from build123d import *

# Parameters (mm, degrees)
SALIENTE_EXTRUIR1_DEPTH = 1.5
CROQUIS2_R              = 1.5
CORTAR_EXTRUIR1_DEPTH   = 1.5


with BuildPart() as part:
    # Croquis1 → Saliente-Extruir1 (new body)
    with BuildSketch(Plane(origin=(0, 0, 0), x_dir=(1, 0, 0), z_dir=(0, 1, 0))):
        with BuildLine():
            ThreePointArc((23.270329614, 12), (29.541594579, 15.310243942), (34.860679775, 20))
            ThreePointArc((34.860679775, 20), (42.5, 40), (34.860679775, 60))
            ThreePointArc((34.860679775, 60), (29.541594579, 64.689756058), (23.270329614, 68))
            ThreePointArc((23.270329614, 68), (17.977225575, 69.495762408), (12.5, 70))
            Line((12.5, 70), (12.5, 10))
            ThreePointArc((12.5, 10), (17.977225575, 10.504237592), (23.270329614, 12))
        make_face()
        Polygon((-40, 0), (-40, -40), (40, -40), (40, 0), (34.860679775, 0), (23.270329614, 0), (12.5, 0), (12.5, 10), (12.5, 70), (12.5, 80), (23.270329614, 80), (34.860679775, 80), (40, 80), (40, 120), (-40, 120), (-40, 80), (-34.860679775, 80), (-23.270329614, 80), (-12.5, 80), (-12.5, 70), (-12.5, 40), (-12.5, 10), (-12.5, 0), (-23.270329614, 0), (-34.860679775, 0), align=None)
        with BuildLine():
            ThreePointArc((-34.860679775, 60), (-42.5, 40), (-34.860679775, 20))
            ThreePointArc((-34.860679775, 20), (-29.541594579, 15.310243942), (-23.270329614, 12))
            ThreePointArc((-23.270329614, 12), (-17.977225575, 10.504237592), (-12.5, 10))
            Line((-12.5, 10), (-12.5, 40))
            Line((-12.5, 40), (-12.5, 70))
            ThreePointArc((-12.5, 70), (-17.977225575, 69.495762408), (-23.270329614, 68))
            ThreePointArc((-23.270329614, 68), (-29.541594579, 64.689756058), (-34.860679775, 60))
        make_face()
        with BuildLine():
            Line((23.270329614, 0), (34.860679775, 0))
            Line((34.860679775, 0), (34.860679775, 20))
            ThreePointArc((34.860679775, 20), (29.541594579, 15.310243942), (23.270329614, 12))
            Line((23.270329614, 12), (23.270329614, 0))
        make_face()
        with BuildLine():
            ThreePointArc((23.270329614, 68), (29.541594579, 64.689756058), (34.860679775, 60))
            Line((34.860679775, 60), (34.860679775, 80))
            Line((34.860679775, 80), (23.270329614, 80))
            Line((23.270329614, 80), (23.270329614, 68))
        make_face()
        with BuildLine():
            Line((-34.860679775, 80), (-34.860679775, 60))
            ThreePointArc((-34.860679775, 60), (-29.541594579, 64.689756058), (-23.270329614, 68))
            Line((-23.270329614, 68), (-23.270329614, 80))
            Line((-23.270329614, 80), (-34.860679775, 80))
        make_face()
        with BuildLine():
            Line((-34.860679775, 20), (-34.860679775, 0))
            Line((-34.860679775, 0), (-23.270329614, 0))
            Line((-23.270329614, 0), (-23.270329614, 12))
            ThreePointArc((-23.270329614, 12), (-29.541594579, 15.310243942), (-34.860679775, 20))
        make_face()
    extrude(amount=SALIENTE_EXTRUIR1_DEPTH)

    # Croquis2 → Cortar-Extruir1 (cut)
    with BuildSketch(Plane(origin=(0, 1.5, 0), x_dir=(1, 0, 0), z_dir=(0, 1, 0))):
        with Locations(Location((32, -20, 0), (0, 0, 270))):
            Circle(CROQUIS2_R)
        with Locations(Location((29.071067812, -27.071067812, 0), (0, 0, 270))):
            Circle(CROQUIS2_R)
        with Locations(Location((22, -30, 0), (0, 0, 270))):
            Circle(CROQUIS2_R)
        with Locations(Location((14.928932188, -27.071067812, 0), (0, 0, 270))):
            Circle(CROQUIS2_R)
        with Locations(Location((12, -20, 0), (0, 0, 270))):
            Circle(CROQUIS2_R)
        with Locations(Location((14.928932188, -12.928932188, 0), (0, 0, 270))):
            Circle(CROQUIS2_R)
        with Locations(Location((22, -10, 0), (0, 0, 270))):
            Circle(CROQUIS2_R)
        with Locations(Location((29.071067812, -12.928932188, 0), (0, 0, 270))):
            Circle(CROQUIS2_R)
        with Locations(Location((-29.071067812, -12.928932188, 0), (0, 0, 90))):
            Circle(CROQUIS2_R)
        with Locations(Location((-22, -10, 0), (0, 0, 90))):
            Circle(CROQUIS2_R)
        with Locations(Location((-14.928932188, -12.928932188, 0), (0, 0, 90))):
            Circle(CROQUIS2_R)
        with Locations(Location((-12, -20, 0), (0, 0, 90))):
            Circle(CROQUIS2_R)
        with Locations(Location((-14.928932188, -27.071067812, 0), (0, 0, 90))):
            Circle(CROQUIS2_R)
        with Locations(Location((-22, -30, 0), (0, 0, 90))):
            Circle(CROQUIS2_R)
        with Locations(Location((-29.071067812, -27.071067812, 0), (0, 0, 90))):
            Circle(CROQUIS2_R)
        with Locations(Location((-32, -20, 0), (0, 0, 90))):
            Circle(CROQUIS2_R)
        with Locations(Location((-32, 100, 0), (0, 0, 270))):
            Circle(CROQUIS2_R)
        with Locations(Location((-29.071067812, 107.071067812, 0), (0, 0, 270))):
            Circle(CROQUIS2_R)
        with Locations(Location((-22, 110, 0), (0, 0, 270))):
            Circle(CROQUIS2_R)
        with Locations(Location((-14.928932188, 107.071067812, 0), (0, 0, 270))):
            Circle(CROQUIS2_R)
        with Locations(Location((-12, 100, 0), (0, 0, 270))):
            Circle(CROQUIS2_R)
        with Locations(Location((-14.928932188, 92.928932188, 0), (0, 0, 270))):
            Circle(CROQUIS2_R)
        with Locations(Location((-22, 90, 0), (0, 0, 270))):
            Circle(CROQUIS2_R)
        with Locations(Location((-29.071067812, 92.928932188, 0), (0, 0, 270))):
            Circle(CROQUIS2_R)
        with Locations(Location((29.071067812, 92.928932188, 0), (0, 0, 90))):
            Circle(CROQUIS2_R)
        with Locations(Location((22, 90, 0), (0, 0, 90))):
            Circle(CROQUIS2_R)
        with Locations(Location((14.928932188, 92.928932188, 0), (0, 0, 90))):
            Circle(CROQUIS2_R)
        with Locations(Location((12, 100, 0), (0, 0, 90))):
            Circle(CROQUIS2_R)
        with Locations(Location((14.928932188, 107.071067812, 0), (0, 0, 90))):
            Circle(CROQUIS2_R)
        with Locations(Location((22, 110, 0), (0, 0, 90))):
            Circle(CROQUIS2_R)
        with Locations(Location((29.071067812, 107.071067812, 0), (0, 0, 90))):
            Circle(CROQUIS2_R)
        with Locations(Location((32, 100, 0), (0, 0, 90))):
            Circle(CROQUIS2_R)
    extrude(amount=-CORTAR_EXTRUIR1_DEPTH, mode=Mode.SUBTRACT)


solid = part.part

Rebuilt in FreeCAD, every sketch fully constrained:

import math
import FreeCAD as App
import Part
import Sketcher

doc = App.newDocument("Part")
params = doc.addObject("Spreadsheet::Sheet", "Params")
for row, (alias, value) in enumerate([
    ("sketch1_radius", "30 mm"),
    ("sketch1_width", "80 mm"),
    ("sketch1_height", "20 mm"),
    ("sketch1_height2", "40 mm"),
    ("sketch1_height3", "10 mm"),
    ("pad1_length", "1.5 mm"),
    ("sketch2_diameter", "3 mm"),
    ("pocket1_length", "1.5 mm"),
], start=1):
    params.set(f"A{row}", alias)
    params.set(f"B{row}", "=" + value)
    params.setAlias(f"B{row}", alias)

body = doc.addObject("PartDesign::Body", "Body")

# Sketch on XZ plane
sketch1 = doc.addObject("Sketcher::SketchObject", "Sketch")
body.addObject(sketch1)
sketch1.AttachmentSupport = (doc.XZ_Plane, [""])
sketch1.MapMode = "FlatFace"
sketch1.addGeometry([
    Part.ArcOfCircle(Part.Circle(App.Vector(12.5, -40, 0), App.Vector(0, 0, 1), 30), math.radians(-41.810315), math.radians(41.810315)),  # 0
    Part.LineSegment(App.Vector(34.86068, -60, 0), App.Vector(34.86068, -80, 0)),  # 1
    Part.LineSegment(App.Vector(34.86068, -80, 0), App.Vector(40, -80, 0)),  # 2
    Part.LineSegment(App.Vector(40, -80, 0), App.Vector(40, -120, 0)),  # 3
    Part.LineSegment(App.Vector(40, -120, 0), App.Vector(-40, -120, 0)),  # 4
    Part.LineSegment(App.Vector(-40, -120, 0), App.Vector(-40, -80, 0)),  # 5
    Part.LineSegment(App.Vector(-40, -80, 0), App.Vector(-34.86068, -80, 0)),  # 6
    Part.LineSegment(App.Vector(-34.86068, -80, 0), App.Vector(-34.86068, -60, 0)),  # 7
    Part.ArcOfCircle(Part.Circle(App.Vector(-12.5, -40, 0), App.Vector(0, 0, 1), 30), math.radians(138.189685), math.radians(221.810315)),  # 8
    Part.LineSegment(App.Vector(-34.86068, -20, 0), App.Vector(-34.86068, 0, 0)),  # 9
    Part.LineSegment(App.Vector(-34.86068, 0, 0), App.Vector(-40, 0, 0)),  # 10
    Part.LineSegment(App.Vector(-40, 0, 0), App.Vector(-40, 40, 0)),  # 11
    Part.LineSegment(App.Vector(-40, 40, 0), App.Vector(40, 40, 0)),  # 12
    Part.LineSegment(App.Vector(40, 40, 0), App.Vector(40, 0, 0)),  # 13
    Part.LineSegment(App.Vector(40, 0, 0), App.Vector(34.86068, 0, 0)),  # 14
    Part.LineSegment(App.Vector(34.86068, 0, 0), App.Vector(34.86068, -20, 0)),  # 15
    Part.ArcOfCircle(Part.Circle(App.Vector(-12.5, -40, 0), App.Vector(0, 0, 1), 30), math.radians(90), math.radians(111.03947)),  # 16
    Part.LineSegment(App.Vector(-12.5, -10, 0), App.Vector(-12.5, 0, 0)),  # 17
    Part.LineSegment(App.Vector(-12.5, 0, 0), App.Vector(-23.27033, 0, 0)),  # 18
    Part.LineSegment(App.Vector(-23.27033, 0, 0), App.Vector(-23.27033, -12, 0)),  # 19
    Part.LineSegment(App.Vector(-23.27033, -80, 0), App.Vector(-12.5, -80, 0)),  # 20
    Part.LineSegment(App.Vector(-12.5, -80, 0), App.Vector(-12.5, -70, 0)),  # 21
    Part.ArcOfCircle(Part.Circle(App.Vector(-12.5, -40, 0), App.Vector(0, 0, 1), 30), math.radians(-111.03947), math.radians(-90)),  # 22
    Part.LineSegment(App.Vector(-23.27033, -68, 0), App.Vector(-23.27033, -80, 0)),  # 23
    Part.ArcOfCircle(Part.Circle(App.Vector(12.5, -40, 0), App.Vector(0, 0, 1), 30), math.radians(-90), math.radians(-68.96053)),  # 24
    Part.LineSegment(App.Vector(12.5, -70, 0), App.Vector(12.5, -80, 0)),  # 25
    Part.LineSegment(App.Vector(12.5, -80, 0), App.Vector(23.27033, -80, 0)),  # 26
    Part.LineSegment(App.Vector(23.27033, -80, 0), App.Vector(23.27033, -68, 0)),  # 27
    Part.LineSegment(App.Vector(23.27033, 0, 0), App.Vector(12.5, 0, 0)),  # 28
    Part.LineSegment(App.Vector(12.5, 0, 0), App.Vector(12.5, -10, 0)),  # 29
    Part.ArcOfCircle(Part.Circle(App.Vector(12.5, -40, 0), App.Vector(0, 0, 1), 30), math.radians(68.96053), math.radians(90)),  # 30
    Part.LineSegment(App.Vector(23.27033, -12, 0), App.Vector(23.27033, 0, 0)),  # 31
], False)
sketch1.addConstraint([
    Sketcher.Constraint("Coincident", 0, 1, 1, 1),
    Sketcher.Constraint("Coincident", 1, 2, 2, 1),
    Sketcher.Constraint("Coincident", 2, 2, 3, 1),
    Sketcher.Constraint("Coincident", 3, 2, 4, 1),
    Sketcher.Constraint("Coincident", 4, 2, 5, 1),
    Sketcher.Constraint("Coincident", 5, 2, 6, 1),
    Sketcher.Constraint("Coincident", 6, 2, 7, 1),
    Sketcher.Constraint("Coincident", 7, 2, 8, 2),
    Sketcher.Constraint("Coincident", 8, 1, 9, 1),
    Sketcher.Constraint("Coincident", 9, 2, 10, 1),
    Sketcher.Constraint("Coincident", 10, 2, 11, 1),
    Sketcher.Constraint("Coincident", 11, 2, 12, 1),
    Sketcher.Constraint("Coincident", 12, 2, 13, 1),
    Sketcher.Constraint("Coincident", 13, 2, 14, 1),
    Sketcher.Constraint("Coincident", 14, 2, 15, 1),
    Sketcher.Constraint("Coincident", 15, 2, 0, 2),
    Sketcher.Constraint("Coincident", 16, 1, 17, 1),
    Sketcher.Constraint("Coincident", 17, 2, 18, 1),
    Sketcher.Constraint("Coincident", 18, 2, 19, 1),
    Sketcher.Constraint("Coincident", 19, 2, 16, 2),
    Sketcher.Constraint("Coincident", 20, 2, 21, 1),
    Sketcher.Constraint("Coincident", 21, 2, 22, 2),
    Sketcher.Constraint("Coincident", 22, 1, 23, 1),
    Sketcher.Constraint("Coincident", 23, 2, 20, 1),
    Sketcher.Constraint("Coincident", 24, 1, 25, 1),
    Sketcher.Constraint("Coincident", 25, 2, 26, 1),
    Sketcher.Constraint("Coincident", 26, 2, 27, 1),
    Sketcher.Constraint("Coincident", 27, 2, 24, 2),
    Sketcher.Constraint("Coincident", 28, 2, 29, 1),
    Sketcher.Constraint("Coincident", 29, 2, 30, 2),
    Sketcher.Constraint("Coincident", 30, 1, 31, 1),
    Sketcher.Constraint("Coincident", 31, 2, 28, 1),
    Sketcher.Constraint("Vertical", 1),
    Sketcher.Constraint("Horizontal", 2),
    Sketcher.Constraint("Vertical", 3),
    Sketcher.Constraint("Horizontal", 4),
    Sketcher.Constraint("Vertical", 5),
    Sketcher.Constraint("Horizontal", 6),
    Sketcher.Constraint("Vertical", 7),
    Sketcher.Constraint("Vertical", 9),
    Sketcher.Constraint("Horizontal", 10),
    Sketcher.Constraint("Vertical", 11),
    Sketcher.Constraint("Horizontal", 12),
    Sketcher.Constraint("Vertical", 13),
    Sketcher.Constraint("Horizontal", 14),
    Sketcher.Constraint("Vertical", 15),
    Sketcher.Constraint("Vertical", 17),
    Sketcher.Constraint("Horizontal", 18),
    Sketcher.Constraint("Vertical", 19),
    Sketcher.Constraint("Horizontal", 20),
    Sketcher.Constraint("Vertical", 21),
    Sketcher.Constraint("Vertical", 23),
    Sketcher.Constraint("Vertical", 25),
    Sketcher.Constraint("Horizontal", 26),
    Sketcher.Constraint("Vertical", 27),
    Sketcher.Constraint("Horizontal", 28),
    Sketcher.Constraint("Vertical", 29),
    Sketcher.Constraint("Vertical", 31),
    Sketcher.Constraint("Coincident", 16, 3, 8, 3),
    Sketcher.Constraint("Coincident", 22, 3, 8, 3),
    Sketcher.Constraint("Coincident", 24, 3, 0, 3),
    Sketcher.Constraint("Coincident", 30, 3, 0, 3),
    Sketcher.Constraint("Equal", 0, 8),
    Sketcher.Constraint("Equal", 8, 16),
    Sketcher.Constraint("Equal", 16, 22),
    Sketcher.Constraint("Equal", 22, 24),
    Sketcher.Constraint("Equal", 24, 30),
    Sketcher.Constraint("Symmetric", 10, 2, 13, 2, -1, 1),
    Sketcher.Constraint("Symmetric", 17, 2, 28, 2, -1, 1),
    Sketcher.Constraint("Symmetric", 0, 3, 8, 3, -2),
    Sketcher.Constraint("Symmetric", 2, 2, 5, 2, -2),
    Sketcher.Constraint("Symmetric", 9, 2, 14, 2, -2),
    Sketcher.Constraint("Symmetric", 20, 2, 25, 2, -2),
    Sketcher.Constraint("Symmetric", 18, 2, 31, 2, -2),
    Sketcher.Constraint("Horizontal", 0, 1, 7, 2),
    Sketcher.Constraint("Horizontal", 6, 2, 20, 2),
    Sketcher.Constraint("Horizontal", 22, 1, 27, 2),
    Sketcher.Constraint("Vertical", 7, 2, 8, 1),
    Sketcher.Constraint("Vertical", 5, 2, 10, 2),
    Sketcher.Constraint("Vertical", 22, 3, 16, 1),
    Sketcher.Constraint("Vertical", 17, 2, 20, 2),
    Sketcher.Constraint("Vertical", 19, 2, 22, 1),
    Sketcher.Constraint("Equal", 7, 9),
    Sketcher.Constraint("Equal", 5, 11),
    Sketcher.Constraint("Radius", 0, 30.0),
    Sketcher.Constraint("DistanceX", 4, 2, 4, 1, 80.0),
    Sketcher.Constraint("DistanceY", 1, 2, 1, 1, 20.0),
    Sketcher.Constraint("DistanceY", 3, 2, 3, 1, 40.0),
    Sketcher.Constraint("DistanceY", 17, 1, 17, 2, 10.0),
    Sketcher.Constraint("DistanceY", 19, 2, 19, 1, 12.0),
    Sketcher.Constraint("DistanceX", 8, 3, 0, 3, 25.0),
])
sketch1.setExpression("Constraints[84]", "Params.sketch1_radius")
sketch1.setExpression("Constraints[85]", "Params.sketch1_width")
sketch1.setExpression("Constraints[86]", "Params.sketch1_height")
sketch1.setExpression("Constraints[87]", "Params.sketch1_height2")
sketch1.setExpression("Constraints[88]", "Params.sketch1_height3")
pad1 = doc.addObject("PartDesign::Pad", "Pad")
body.addObject(pad1)
pad1.Profile = sketch1
pad1.setExpression("Length", "Params.pad1_length")
pad1.Reversed = True

# Sketch on XZ plane
sketch2 = doc.addObject("Sketcher::SketchObject", "Sketch001")
body.addObject(sketch2)
sketch2.AttachmentSupport = (doc.XZ_Plane, [""])
sketch2.MapMode = "FlatFace"
sketch2.AttachmentOffset = App.Placement(App.Vector(0, 0, -1.5), App.Rotation())
sketch2.addGeometry([
    Part.Circle(App.Vector(32, 20, 0), App.Vector(0, 0, 1), 1.5),  # 0
    Part.Circle(App.Vector(29.071068, 27.071068, 0), App.Vector(0, 0, 1), 1.5),  # 1
    Part.Circle(App.Vector(22, 30, 0), App.Vector(0, 0, 1), 1.5),  # 2
    Part.Circle(App.Vector(14.928932, 27.071068, 0), App.Vector(0, 0, 1), 1.5),  # 3
    Part.Circle(App.Vector(12, 20, 0), App.Vector(0, 0, 1), 1.5),  # 4
    Part.Circle(App.Vector(14.928932, 12.928932, 0), App.Vector(0, 0, 1), 1.5),  # 5
    Part.Circle(App.Vector(22, 10, 0), App.Vector(0, 0, 1), 1.5),  # 6
    Part.Circle(App.Vector(29.071068, 12.928932, 0), App.Vector(0, 0, 1), 1.5),  # 7
    Part.Circle(App.Vector(-29.071068, 12.928932, 0), App.Vector(0, 0, 1), 1.5),  # 8
    Part.Circle(App.Vector(-22, 10, 0), App.Vector(0, 0, 1), 1.5),  # 9
    Part.Circle(App.Vector(-14.928932, 12.928932, 0), App.Vector(0, 0, 1), 1.5),  # 10
    Part.Circle(App.Vector(-12, 20, 0), App.Vector(0, 0, 1), 1.5),  # 11
    Part.Circle(App.Vector(-14.928932, 27.071068, 0), App.Vector(0, 0, 1), 1.5),  # 12
    Part.Circle(App.Vector(-22, 30, 0), App.Vector(0, 0, 1), 1.5),  # 13
    Part.Circle(App.Vector(-29.071068, 27.071068, 0), App.Vector(0, 0, 1), 1.5),  # 14
    Part.Circle(App.Vector(-32, 20, 0), App.Vector(0, 0, 1), 1.5),  # 15
    Part.Circle(App.Vector(-32, -100, 0), App.Vector(0, 0, 1), 1.5),  # 16
    Part.Circle(App.Vector(-29.071068, -107.071068, 0), App.Vector(0, 0, 1), 1.5),  # 17
    Part.Circle(App.Vector(-22, -110, 0), App.Vector(0, 0, 1), 1.5),  # 18
    Part.Circle(App.Vector(-14.928932, -107.071068, 0), App.Vector(0, 0, 1), 1.5),  # 19
    Part.Circle(App.Vector(-12, -100, 0), App.Vector(0, 0, 1), 1.5),  # 20
    Part.Circle(App.Vector(-14.928932, -92.928932, 0), App.Vector(0, 0, 1), 1.5),  # 21
    Part.Circle(App.Vector(-22, -90, 0), App.Vector(0, 0, 1), 1.5),  # 22
    Part.Circle(App.Vector(-29.071068, -92.928932, 0), App.Vector(0, 0, 1), 1.5),  # 23
    Part.Circle(App.Vector(29.071068, -92.928932, 0), App.Vector(0, 0, 1), 1.5),  # 24
    Part.Circle(App.Vector(22, -90, 0), App.Vector(0, 0, 1), 1.5),  # 25
    Part.Circle(App.Vector(14.928932, -92.928932, 0), App.Vector(0, 0, 1), 1.5),  # 26
    Part.Circle(App.Vector(12, -100, 0), App.Vector(0, 0, 1), 1.5),  # 27
    Part.Circle(App.Vector(14.928932, -107.071068, 0), App.Vector(0, 0, 1), 1.5),  # 28
    Part.Circle(App.Vector(22, -110, 0), App.Vector(0, 0, 1), 1.5),  # 29
    Part.Circle(App.Vector(29.071068, -107.071068, 0), App.Vector(0, 0, 1), 1.5),  # 30
    Part.Circle(App.Vector(32, -100, 0), App.Vector(0, 0, 1), 1.5),  # 31
], False)
sketch2.addConstraint([
    Sketcher.Constraint("Equal", 0, 1),
    Sketcher.Constraint("Equal", 1, 2),
    Sketcher.Constraint("Equal", 2, 3),
    Sketcher.Constraint("Equal", 3, 4),
    Sketcher.Constraint("Equal", 4, 5),
    Sketcher.Constraint("Equal", 5, 6),
    Sketcher.Constraint("Equal", 6, 7),
    Sketcher.Constraint("Equal", 7, 8),
    Sketcher.Constraint("Equal", 8, 9),
    Sketcher.Constraint("Equal", 9, 10),
    Sketcher.Constraint("Equal", 10, 11),
    Sketcher.Constraint("Equal", 11, 12),
    Sketcher.Constraint("Equal", 12, 13),
    Sketcher.Constraint("Equal", 13, 14),
    Sketcher.Constraint("Equal", 14, 15),
    Sketcher.Constraint("Equal", 15, 16),
    Sketcher.Constraint("Equal", 16, 17),
    Sketcher.Constraint("Equal", 17, 18),
    Sketcher.Constraint("Equal", 18, 19),
    Sketcher.Constraint("Equal", 19, 20),
    Sketcher.Constraint("Equal", 20, 21),
    Sketcher.Constraint("Equal", 21, 22),
    Sketcher.Constraint("Equal", 22, 23),
    Sketcher.Constraint("Equal", 23, 24),
    Sketcher.Constraint("Equal", 24, 25),
    Sketcher.Constraint("Equal", 25, 26),
    Sketcher.Constraint("Equal", 26, 27),
    Sketcher.Constraint("Equal", 27, 28),
    Sketcher.Constraint("Equal", 28, 29),
    Sketcher.Constraint("Equal", 29, 30),
    Sketcher.Constraint("Equal", 30, 31),
    Sketcher.Constraint("Symmetric", 7, 3, 8, 3, -2),
    Sketcher.Constraint("Symmetric", 6, 3, 9, 3, -2),
    Sketcher.Constraint("Symmetric", 5, 3, 10, 3, -2),
    Sketcher.Constraint("Symmetric", 4, 3, 11, 3, -2),
    Sketcher.Constraint("Symmetric", 3, 3, 12, 3, -2),
    Sketcher.Constraint("Symmetric", 2, 3, 13, 3, -2),
    Sketcher.Constraint("Symmetric", 1, 3, 14, 3, -2),
    Sketcher.Constraint("Symmetric", 0, 3, 15, 3, -2),
    Sketcher.Constraint("Symmetric", 23, 3, 24, 3, -2),
    Sketcher.Constraint("Symmetric", 22, 3, 25, 3, -2),
    Sketcher.Constraint("Symmetric", 21, 3, 26, 3, -2),
    Sketcher.Constraint("Symmetric", 20, 3, 27, 3, -2),
    Sketcher.Constraint("Symmetric", 19, 3, 28, 3, -2),
    Sketcher.Constraint("Symmetric", 18, 3, 29, 3, -2),
    Sketcher.Constraint("Symmetric", 17, 3, 30, 3, -2),
    Sketcher.Constraint("Symmetric", 16, 3, 31, 3, -2),
    Sketcher.Constraint("Horizontal", 1, 3, 3, 3),
    Sketcher.Constraint("Horizontal", 0, 3, 4, 3),
    Sketcher.Constraint("Horizontal", 5, 3, 7, 3),
    Sketcher.Constraint("Horizontal", 17, 3, 19, 3),
    Sketcher.Constraint("Horizontal", 16, 3, 20, 3),
    Sketcher.Constraint("Horizontal", 21, 3, 23, 3),
    Sketcher.Constraint("Vertical", 3, 3, 5, 3),
    Sketcher.Constraint("Vertical", 2, 3, 6, 3),
    Sketcher.Constraint("Vertical", 1, 3, 7, 3),
    Sketcher.Constraint("Vertical", 15, 3, 16, 3),
    Sketcher.Constraint("Vertical", 14, 3, 17, 3),
    Sketcher.Constraint("Vertical", 13, 3, 18, 3),
    Sketcher.Constraint("Vertical", 12, 3, 19, 3),
    Sketcher.Constraint("Vertical", 11, 3, 20, 3),
    Sketcher.Constraint("Vertical", 19, 3, 21, 3),
    Sketcher.Constraint("Vertical", 18, 3, 22, 3),
    Sketcher.Constraint("Vertical", 17, 3, 23, 3),
    Sketcher.Constraint("Diameter", 0, 3.0),
    Sketcher.Constraint("DistanceX", -1, 1, 0, 3, 32.0),
    Sketcher.Constraint("DistanceY", -1, 1, 0, 3, 20.0),
    Sketcher.Constraint("DistanceX", -1, 1, 2, 3, 22.0),
    Sketcher.Constraint("DistanceY", -1, 1, 2, 3, 30.0),
    Sketcher.Constraint("DistanceX", -1, 1, 4, 3, 12.0),
    Sketcher.Constraint("DistanceY", -1, 1, 6, 3, 10.0),
    Sketcher.Constraint("DistanceY", 16, 3, -1, 1, 100.0),
    Sketcher.Constraint("DistanceY", 18, 3, -1, 1, 110.0),
    Sketcher.Constraint("DistanceY", 22, 3, -1, 1, 90.0),
    Sketcher.Constraint("DistanceX", 8, 3, 5, 3, 44.0),
    Sketcher.Constraint("DistanceY", 17, 3, 8, 3, 120.0),
    Sketcher.Constraint("DistanceX", -1, 1, 1, 3, 29.071068),
    Sketcher.Constraint("DistanceY", -1, 1, 1, 3, 27.071068),
    Sketcher.Constraint("DistanceY", -1, 1, 5, 3, 12.928932),
    Sketcher.Constraint("DistanceY", 21, 3, -1, 1, 92.928932),
])
sketch2.setExpression("Constraints[64]", "Params.sketch2_diameter")
pocket1 = doc.addObject("PartDesign::Pocket", "Pocket")
body.addObject(pocket1)
pocket1.Profile = sketch2
pocket1.setExpression("Length", "Params.pocket1_length")
pocket1.Reversed = True

doc.recompute()
